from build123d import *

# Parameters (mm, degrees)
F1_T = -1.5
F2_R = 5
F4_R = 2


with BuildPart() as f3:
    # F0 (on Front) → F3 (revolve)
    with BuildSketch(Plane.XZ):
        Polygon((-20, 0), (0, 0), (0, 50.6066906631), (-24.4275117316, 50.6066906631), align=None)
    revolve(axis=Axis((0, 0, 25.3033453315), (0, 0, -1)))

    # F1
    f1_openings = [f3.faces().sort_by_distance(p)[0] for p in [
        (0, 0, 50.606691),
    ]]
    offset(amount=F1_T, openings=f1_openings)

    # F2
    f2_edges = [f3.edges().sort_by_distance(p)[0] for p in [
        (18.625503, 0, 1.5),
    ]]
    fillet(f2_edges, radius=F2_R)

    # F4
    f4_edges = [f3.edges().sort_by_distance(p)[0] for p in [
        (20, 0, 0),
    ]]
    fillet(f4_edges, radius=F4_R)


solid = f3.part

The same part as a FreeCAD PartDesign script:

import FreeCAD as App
import Part
import Sketcher
Q = App.Units.Quantity


def edges_at(feature, points):
    """Names of the edges that pass closest to the given points."""
    edges = feature.Shape.Edges
    near = lambda p: min(range(len(edges)), key=lambda i: edges[i].distToShape(Part.Vertex(*p))[0])
    return sorted({f"Edge{near(p) + 1}" for p in points})


def faces_at(feature, points):
    """Names of the faces that lie closest to the given points."""
    faces = feature.Shape.Faces
    near = lambda p: min(range(len(faces)), key=lambda i: faces[i].distToShape(Part.Vertex(*p))[0])
    return sorted({f"Face{near(p) + 1}" for p in points})

doc = App.newDocument("Part")
body = doc.addObject("PartDesign::Body", "Body")

# Sketch on XZ plane
sketch1 = doc.addObject("Sketcher::SketchObject", "Sketch")
body.addObject(sketch1)
sketch1.AttachmentSupport = (doc.XZ_Plane, [""])
sketch1.MapMode = "FlatFace"
sketch1.addGeometry([
    Part.LineSegment(App.Vector(-20, 0, 0), App.Vector(0, 0, 0)),
    Part.LineSegment(App.Vector(0, 0, 0), App.Vector(0, 51, 0)),
    Part.LineSegment(App.Vector(0, 51, 0), App.Vector(-24, 51, 0)),
    Part.LineSegment(App.Vector(-24, 51, 0), App.Vector(-20, 0, 0)),
], False)
sketch1.addConstraint([
    Sketcher.Constraint("Coincident", 0, 2, 1, 1),
    Sketcher.Constraint("Coincident", 1, 2, 2, 1),
    Sketcher.Constraint("Coincident", 2, 2, 3, 1),
    Sketcher.Constraint("Coincident", 3, 2, 0, 1),
    Sketcher.Constraint("Horizontal", 0),
    Sketcher.Constraint("Vertical", 1),
    Sketcher.Constraint("Horizontal", 2),
    Sketcher.Constraint("Coincident", 0, 2, -1, 1),
    Sketcher.Constraint("DistanceX", 0, 1, 0, 2, 20.0),
    Sketcher.Constraint("Angle", 3, Q("-85 deg")),
    Sketcher.Constraint("Distance", 3, 50.8),
])
revolution = doc.addObject("PartDesign::Revolution", "Revolution")
body.addObject(revolution)
revolution.Profile = sketch1
revolution.ReferenceAxis = (sketch1, ["V_Axis"])
revolution.Angle = 360
doc.recompute()

thickness = doc.addObject("PartDesign::Thickness", "Thickness")
body.addObject(thickness)
thickness.Base = (revolution, faces_at(revolution, [(0, 0, 50.607)]))
thickness.Value = 1.5
thickness.Reversed = True
thickness.Join = "Arc"
doc.recompute()

fillet = doc.addObject("PartDesign::Fillet", "Fillet")
body.addObject(fillet)
fillet.Base = (thickness, edges_at(thickness, [(18.626, 0, 1.5)]))
fillet.Radius = 5
doc.recompute()

fillet2 = doc.addObject("PartDesign::Fillet", "Fillet001")
body.addObject(fillet2)
fillet2.Base = (fillet, edges_at(fillet, [(20, 0, 0)]))
fillet2.Radius = 2

doc.recompute()
